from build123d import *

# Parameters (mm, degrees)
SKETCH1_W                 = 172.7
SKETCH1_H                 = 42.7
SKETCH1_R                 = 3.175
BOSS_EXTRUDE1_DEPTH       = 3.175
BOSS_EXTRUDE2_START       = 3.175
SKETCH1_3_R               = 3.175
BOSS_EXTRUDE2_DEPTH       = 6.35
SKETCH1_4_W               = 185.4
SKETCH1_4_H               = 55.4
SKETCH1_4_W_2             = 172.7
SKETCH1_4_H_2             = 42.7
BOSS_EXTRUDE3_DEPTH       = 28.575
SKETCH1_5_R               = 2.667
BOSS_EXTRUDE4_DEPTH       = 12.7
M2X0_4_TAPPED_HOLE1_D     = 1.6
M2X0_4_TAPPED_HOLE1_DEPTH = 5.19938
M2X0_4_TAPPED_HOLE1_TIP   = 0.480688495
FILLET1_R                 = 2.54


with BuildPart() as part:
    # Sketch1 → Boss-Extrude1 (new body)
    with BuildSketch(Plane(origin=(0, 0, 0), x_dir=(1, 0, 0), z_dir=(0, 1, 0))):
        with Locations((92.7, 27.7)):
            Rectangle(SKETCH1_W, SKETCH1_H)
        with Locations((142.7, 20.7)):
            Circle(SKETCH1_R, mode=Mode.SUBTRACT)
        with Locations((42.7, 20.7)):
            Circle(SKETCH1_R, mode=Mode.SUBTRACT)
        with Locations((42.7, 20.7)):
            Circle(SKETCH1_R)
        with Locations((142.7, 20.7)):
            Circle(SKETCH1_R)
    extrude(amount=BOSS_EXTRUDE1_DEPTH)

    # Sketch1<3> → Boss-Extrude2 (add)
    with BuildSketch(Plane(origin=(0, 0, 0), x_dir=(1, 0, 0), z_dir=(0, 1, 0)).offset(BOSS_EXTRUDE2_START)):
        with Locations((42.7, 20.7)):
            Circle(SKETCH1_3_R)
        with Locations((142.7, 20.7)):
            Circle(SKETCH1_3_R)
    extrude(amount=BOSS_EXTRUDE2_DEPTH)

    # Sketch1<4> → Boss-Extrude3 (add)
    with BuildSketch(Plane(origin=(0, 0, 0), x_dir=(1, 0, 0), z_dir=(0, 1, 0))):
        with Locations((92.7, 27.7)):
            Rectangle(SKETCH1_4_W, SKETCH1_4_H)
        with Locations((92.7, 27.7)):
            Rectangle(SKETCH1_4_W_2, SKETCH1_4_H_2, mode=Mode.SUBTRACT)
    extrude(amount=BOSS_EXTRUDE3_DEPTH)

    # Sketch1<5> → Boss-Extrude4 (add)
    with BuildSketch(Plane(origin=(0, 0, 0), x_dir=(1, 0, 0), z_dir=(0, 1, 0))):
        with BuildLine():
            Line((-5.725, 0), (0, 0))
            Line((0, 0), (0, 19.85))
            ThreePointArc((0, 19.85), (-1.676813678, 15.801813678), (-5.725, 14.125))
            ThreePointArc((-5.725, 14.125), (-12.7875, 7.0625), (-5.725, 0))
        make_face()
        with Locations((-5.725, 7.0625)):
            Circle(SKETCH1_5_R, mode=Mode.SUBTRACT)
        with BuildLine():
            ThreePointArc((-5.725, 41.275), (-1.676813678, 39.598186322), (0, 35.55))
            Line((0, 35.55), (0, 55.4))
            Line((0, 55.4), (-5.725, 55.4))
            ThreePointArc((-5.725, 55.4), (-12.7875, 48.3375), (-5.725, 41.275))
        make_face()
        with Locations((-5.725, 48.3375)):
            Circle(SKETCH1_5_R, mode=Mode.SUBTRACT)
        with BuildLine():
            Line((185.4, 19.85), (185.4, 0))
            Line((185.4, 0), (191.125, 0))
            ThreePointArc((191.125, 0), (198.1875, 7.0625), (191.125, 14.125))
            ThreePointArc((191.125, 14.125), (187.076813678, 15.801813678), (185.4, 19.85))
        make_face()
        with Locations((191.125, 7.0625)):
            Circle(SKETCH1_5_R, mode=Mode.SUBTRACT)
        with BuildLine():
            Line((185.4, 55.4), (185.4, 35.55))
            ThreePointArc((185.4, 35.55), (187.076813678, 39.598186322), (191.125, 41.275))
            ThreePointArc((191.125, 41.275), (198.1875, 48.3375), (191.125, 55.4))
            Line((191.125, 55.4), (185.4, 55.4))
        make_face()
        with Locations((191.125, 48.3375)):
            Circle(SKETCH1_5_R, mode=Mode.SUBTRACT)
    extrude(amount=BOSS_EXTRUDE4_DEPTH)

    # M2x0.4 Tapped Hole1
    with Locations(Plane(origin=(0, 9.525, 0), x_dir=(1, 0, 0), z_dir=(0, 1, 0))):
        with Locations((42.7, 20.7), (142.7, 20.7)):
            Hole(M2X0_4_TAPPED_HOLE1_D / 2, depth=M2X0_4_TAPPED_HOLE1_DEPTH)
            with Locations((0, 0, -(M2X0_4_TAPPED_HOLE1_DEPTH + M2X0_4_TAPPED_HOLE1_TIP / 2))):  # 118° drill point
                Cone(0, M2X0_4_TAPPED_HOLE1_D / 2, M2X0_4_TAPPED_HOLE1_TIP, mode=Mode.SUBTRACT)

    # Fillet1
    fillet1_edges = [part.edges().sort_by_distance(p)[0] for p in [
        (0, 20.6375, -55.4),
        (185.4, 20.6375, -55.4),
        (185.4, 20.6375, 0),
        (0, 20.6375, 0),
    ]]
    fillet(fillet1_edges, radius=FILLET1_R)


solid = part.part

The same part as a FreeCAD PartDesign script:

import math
import FreeCAD as App
import Part
import Sketcher
from FreeCAD import Vector
Q = App.Units.Quantity


def edges_at(feature, points):
    """Names of the edges that pass closest to the given points."""
    edges = feature.Shape.Edges
    near = lambda p: min(range(len(edges)), key=lambda i: edges[i].distToShape(Part.Vertex(*p))[0])
    return sorted({f"Edge{near(p) + 1}" for p in points})


def add_polygon(sketch, points):
    """Adds a closed chain of lines whose ends are joined by coincident constraints."""
    first, n = sketch.GeometryCount, len(points)
    for a, b in zip(points, points[1:] + points[:1]):
        sketch.addGeometry(Part.LineSegment(App.Vector(*a, 0), App.Vector(*b, 0)), False)
    for i in range(n):
        sketch.addConstraint(Sketcher.Constraint("Coincident", first + i, 2, first + (i + 1) % n, 1))

doc = App.newDocument("Part")
body = doc.addObject("PartDesign::Body", "Body")

sketch1 = doc.addObject("Sketcher::SketchObject", "Sketch")
body.addObject(sketch1)
sketch1.AttachmentSupport = (doc.XZ_Plane, [""])
sketch1.MapMode = "FlatFace"
add_polygon(sketch1, [(6.35, -49.05), (6.35, -6.35), (179.05, -6.35), (179.05, -49.05)])
sketch1.addConstraint(Sketcher.Constraint("Vertical", 0))
sketch1.addConstraint(Sketcher.Constraint("Horizontal", 1))
sketch1.addConstraint(Sketcher.Constraint("Vertical", 2))
sketch1.addConstraint(Sketcher.Constraint("Horizontal", 3))
sketch1.addConstraint(Sketcher.Constraint("DistanceX", -1, 1, 0, 2, Q("0.25 in")))
sketch1.addConstraint(Sketcher.Constraint("DistanceY", 0, 2, -1, 1, Q("0.25 in")))
sketch1.addConstraint(Sketcher.Constraint("DistanceX", 1, 1, 1, 2, Q("172.7 mm")))
sketch1.addConstraint(Sketcher.Constraint("DistanceY", 0, 1, 0, 2, Q("42.7 mm")))
pad1 = doc.addObject("PartDesign::Pad", "Pad")
body.addObject(pad1)
pad1.Profile = sketch1
pad1.Length = Q("0.125 in")
pad1.Reversed = True

sketch2 = doc.addObject("Sketcher::SketchObject", "Sketch001")
body.addObject(sketch2)
sketch2.AttachmentSupport = (doc.XZ_Plane, [""])
sketch2.MapMode = "FlatFace"
sketch2.AttachmentOffset = App.Placement(Vector(0, 0, -0.125 * 25.4), App.Rotation())
sketch2.addGeometry(Part.Circle(Vector(42.7, -20.7, 0), Vector(0, 0, 1), 3.175), False)
sketch2.addGeometry(Part.Circle(Vector(142.7, -20.7, 0), Vector(0, 0, 1), 3.175), False)
sketch2.addConstraint(Sketcher.Constraint("Equal", 0, 1))
sketch2.addConstraint(Sketcher.Constraint("Horizontal", 0, 3, 1, 3))
sketch2.addConstraint(Sketcher.Constraint("Diameter", 0, Q("0.25 in")))
sketch2.addConstraint(Sketcher.Constraint("DistanceX", -1, 1, 0, 3, Q("42.7 mm")))
sketch2.addConstraint(Sketcher.Constraint("DistanceY", 0, 3, -1, 1, Q("20.7 mm")))
sketch2.addConstraint(Sketcher.Constraint("DistanceX", -1, 1, 1, 3, Q("142.7 mm")))
pad2 = doc.addObject("PartDesign::Pad", "Pad001")
body.addObject(pad2)
pad2.Profile = sketch2
pad2.Length = Q("0.25 in")
pad2.Reversed = True

sketch3 = doc.addObject("Sketcher::SketchObject", "Sketch002")
body.addObject(sketch3)
sketch3.AttachmentSupport = (doc.XZ_Plane, [""])
sketch3.MapMode = "FlatFace"
add_polygon(sketch3, [(0, -55.4), (0, 0), (185.4, 0), (185.4, -55.4)])
add_polygon(sketch3, [(179.05, -6.35), (6.35, -6.35), (6.35, -49.05), (179.05, -49.05)])
sketch3.addConstraint(Sketcher.Constraint("Vertical", 0))
sketch3.addConstraint(Sketcher.Constraint("Horizontal", 1))
sketch3.addConstraint(Sketcher.Constraint("Vertical", 2))
sketch3.addConstraint(Sketcher.Constraint("Horizontal", 3))
sketch3.addConstraint(Sketcher.Constraint("Horizontal", 4))
sketch3.addConstraint(Sketcher.Constraint("Vertical", 5))
sketch3.addConstraint(Sketcher.Constraint("Horizontal", 6))
sketch3.addConstraint(Sketcher.Constraint("Vertical", 7))
sketch3.addConstraint(Sketcher.Constraint("Coincident", 0, 2, -1, 1))
sketch3.addConstraint(Sketcher.Constraint("DistanceX", -1, 1, 4, 2, Q("0.25 in")))
sketch3.addConstraint(Sketcher.Constraint("DistanceY", 4, 2, -1, 1, Q("0.25 in")))
sketch3.addConstraint(Sketcher.Constraint("DistanceY", 3, 2, 5, 2, Q("0.25 in")))
sketch3.addConstraint(Sketcher.Constraint("DistanceX", 6, 2, 2, 2, Q("0.25 in")))
sketch3.addConstraint(Sketcher.Constraint("DistanceX", 1, 1, 1, 2, Q("185.4 mm")))
sketch3.addConstraint(Sketcher.Constraint("DistanceY", 0, 1, 0, 2, Q("55.4 mm")))
pad3 = doc.addObject("PartDesign::Pad", "Pad002")
body.addObject(pad3)
pad3.Profile = sketch3
pad3.Length = Q("1.125 in")
pad3.Reversed = True

sketch4 = doc.addObject("Sketcher::SketchObject", "Sketch003")
body.addObject(sketch4)
sketch4.AttachmentSupport = (doc.XZ_Plane, [""])
sketch4.MapMode = "FlatFace"
sketch4.addGeometry(Part.LineSegment(Vector(-5.725, 0, 0), Vector(0, 0, 0)), False)
sketch4.addGeometry(Part.LineSegment(Vector(0, 0, 0), Vector(0, -19.85, 0)), False)
sketch4.addGeometry(Part.ArcOfCircle(Part.Circle(Vector(-5.725, -19.85, 0), Vector(0, 0, 1), 5.725), math.radians(0), math.radians(90)), False)
sketch4.addGeometry(Part.ArcOfCircle(Part.Circle(Vector(-5.725, -7.0625, 0), Vector(0, 0, 1), 7.0625), math.radians(90), math.radians(270)), False)
sketch4.addGeometry(Part.Circle(Vector(-5.725, -7.0625, 0), Vector(0, 0, 1), 2.667), False)
sketch4.addGeometry(Part.ArcOfCircle(Part.Circle(Vector(-5.725, -35.55, 0), Vector(0, 0, 1), 5.725), math.radians(-90), math.radians(0)), False)
sketch4.addGeometry(Part.LineSegment(Vector(0, -35.55, 0), Vector(0, -55.4, 0)), False)
sketch4.addGeometry(Part.LineSegment(Vector(0, -55.4, 0), Vector(-5.725, -55.4, 0)), False)
sketch4.addGeometry(Part.ArcOfCircle(Part.Circle(Vector(-5.725, -48.3375, 0), Vector(0, 0, 1), 7.0625), math.radians(90), math.radians(270)), False)
sketch4.addGeometry(Part.Circle(Vector(-5.725, -48.3375, 0), Vector(0, 0, 1), 2.667), False)
sketch4.addGeometry(Part.LineSegment(Vector(185.4, -19.85, 0), Vector(185.4, 0, 0)), False)
sketch4.addGeometry(Part.LineSegment(Vector(185.4, 0, 0), Vector(191.125, 0, 0)), False)
sketch4.addGeometry(Part.ArcOfCircle(Part.Circle(Vector(191.125, -7.0625, 0), Vector(0, 0, 1), 7.0625), math.radians(-90), math.radians(90)), False)
sketch4.addGeometry(Part.ArcOfCircle(Part.Circle(Vector(191.125, -19.85, 0), Vector(0, 0, 1), 5.725), math.radians(90), math.radians(180)), False)
sketch4.addGeometry(Part.Circle(Vector(191.125, -7.0625, 0), Vector(0, 0, 1), 2.667), False)
sketch4.addGeometry(Part.LineSegment(Vector(185.4, -55.4, 0), Vector(185.4, -35.55, 0)), False)
sketch4.addGeometry(Part.ArcOfCircle(Part.Circle(Vector(191.125, -35.55, 0), Vector(0, 0, 1), 5.725), math.radians(-180), math.radians(-90)), False)
sketch4.addGeometry(Part.ArcOfCircle(Part.Circle(Vector(191.125, -48.3375, 0), Vector(0, 0, 1), 7.0625), math.radians(-90), math.radians(90)), False)
sketch4.addGeometry(Part.LineSegment(Vector(191.125, -55.4, 0), Vector(185.4, -55.4, 0)), False)
sketch4.addGeometry(Part.Circle(Vector(191.125, -48.3375, 0), Vector(0, 0, 1), 2.667), False)
sketch4.addConstraint(Sketcher.Constraint("Coincident", 0, 2, 1, 1))
sketch4.addConstraint(Sketcher.Constraint("Tangent", 1, 2, 2, 1))
sketch4.addConstraint(Sketcher.Constraint("Tangent", 2, 2, 3, 2))
sketch4.addConstraint(Sketcher.Constraint("Tangent", 3, 1, 0, 1))
sketch4.addConstraint(Sketcher.Constraint("Tangent", 5, 2, 6, 1))
sketch4.addConstraint(Sketcher.Constraint("Coincident", 6, 2, 7, 1))
sketch4.addConstraint(Sketcher.Constraint("Tangent", 7, 2, 8, 2))
sketch4.addConstraint(Sketcher.Constraint("Tangent", 8, 1, 5, 1))
sketch4.addConstraint(Sketcher.Constraint("Coincident", 10, 2, 11, 1))
sketch4.addConstraint(Sketcher.Constraint("Tangent", 11, 2, 12, 2))
sketch4.addConstraint(Sketcher.Constraint("Tangent", 12, 1, 13, 1))
sketch4.addConstraint(Sketcher.Constraint("Tangent", 13, 2, 10, 1))
sketch4.addConstraint(Sketcher.Constraint("Tangent", 15, 2, 16, 1))
sketch4.addConstraint(Sketcher.Constraint("Tangent", 16, 2, 17, 2))
sketch4.addConstraint(Sketcher.Constraint("Tangent", 17, 1, 18, 1))
sketch4.addConstraint(Sketcher.Constraint("Coincident", 18, 2, 15, 1))
sketch4.addConstraint(Sketcher.Constraint("Horizontal", 0))
sketch4.addConstraint(Sketcher.Constraint("Vertical", 1))
sketch4.addConstraint(Sketcher.Constraint("Vertical", 6))
sketch4.addConstraint(Sketcher.Constraint("Horizontal", 7))
sketch4.addConstraint(Sketcher.Constraint("Vertical", 10))
sketch4.addConstraint(Sketcher.Constraint("Horizontal", 11))
sketch4.addConstraint(Sketcher.Constraint("Vertical", 15))
sketch4.addConstraint(Sketcher.Constraint("Horizontal", 18))
sketch4.addConstraint(Sketcher.Constraint("Coincident", 0, 2, -1, 1))
sketch4.addConstraint(Sketcher.Constraint("Coincident", 4, 3, 3, 3))
sketch4.addConstraint(Sketcher.Constraint("Coincident", 9, 3, 8, 3))
sketch4.addConstraint(Sketcher.Constraint("Coincident", 14, 3, 12, 3))
sketch4.addConstraint(Sketcher.Constraint("Coincident", 19, 3, 17, 3))
sketch4.addConstraint(Sketcher.Constraint("Equal", 2, 5))
sketch4.addConstraint(Sketcher.Constraint("Equal", 3, 8))
sketch4.addConstraint(Sketcher.Constraint("Equal", 4, 9))
sketch4.addConstraint(Sketcher.Constraint("Equal", 8, 12))
sketch4.addConstraint(Sketcher.Constraint("Equal", 5, 13))
sketch4.addConstraint(Sketcher.Constraint("Equal", 9, 14))
sketch4.addConstraint(Sketcher.Constraint("Equal", 13, 16))
sketch4.addConstraint(Sketcher.Constraint("Equal", 12, 17))
sketch4.addConstraint(Sketcher.Constraint("Equal", 14, 19))
sketch4.addConstraint(Sketcher.Constraint("PointOnObject", 5, 2, -2))
sketch4.addConstraint(Sketcher.Constraint("PointOnObject", 10, 2, -1))
sketch4.addConstraint(Sketcher.Constraint("Horizontal", 5, 3, 16, 3))
sketch4.addConstraint(Sketcher.Constraint("Vertical", 2, 3, 3, 3))
sketch4.addConstraint(Sketcher.Constraint("Vertical", 5, 3, 8, 3))
sketch4.addConstraint(Sketcher.Constraint("Vertical", 12, 3, 13, 3))
sketch4.addConstraint(Sketcher.Constraint("Vertical", 14, 3, 16, 3))
sketch4.addConstraint(Sketcher.Constraint("Vertical", 16, 3, 17, 3))
sketch4.addConstraint(Sketcher.Constraint("Diameter", 4, Q("0.21 in")))
sketch4.addConstraint(Sketcher.Constraint("Radius", 2, Q("5.725 mm")))
sketch4.addConstraint(Sketcher.Constraint("Radius", 3, Q("7.0625 mm")))
sketch4.addConstraint(Sketcher.Constraint("DistanceX", 3, 3, 12, 3, Q("7.75 in")))
sketch4.addConstraint(Sketcher.Constraint("DistanceY", 8, 1, -1, 1, Q("1.625 in")))
pad4 = doc.addObject("PartDesign::Pad", "Pad003")
body.addObject(pad4)
pad4.Profile = sketch4
pad4.Length = Q("0.5 in")
pad4.Reversed = True

sketch5 = doc.addObject("Sketcher::SketchObject", "Sketch004")
body.addObject(sketch5)
sketch5.AttachmentSupport = (doc.XZ_Plane, [""])
sketch5.MapMode = "FlatFace"
sketch5.AttachmentOffset = App.Placement(Vector(0, 0, -0.375 * 25.4), App.Rotation())
sketch5.addGeometry(Part.Circle(Vector(42.7, -20.7, 0), Vector(0, 0, 1), 0.8), False)
sketch5.addGeometry(Part.Circle(Vector(142.7, -20.7, 0), Vector(0, 0, 1), 0.8), False)
sketch5.addConstraint(Sketcher.Constraint("Equal", 0, 1))
sketch5.addConstraint(Sketcher.Constraint("Horizontal", 0, 3, 1, 3))
sketch5.addConstraint(Sketcher.Constraint("Diameter", 0, Q("1.6 mm")))
sketch5.addConstraint(Sketcher.Constraint("DistanceX", -1, 1, 0, 3, Q("42.7 mm")))
sketch5.addConstraint(Sketcher.Constraint("DistanceY", 0, 3, -1, 1, Q("20.7 mm")))
sketch5.addConstraint(Sketcher.Constraint("DistanceX", -1, 1, 1, 3, Q("142.7 mm")))
doc.recompute()
hole = doc.addObject("PartDesign::Hole", "Hole")
body.addObject(hole)
hole.Profile = sketch5
hole.ThreadType = "None"
hole.Diameter = 1.6
hole.DepthType = "Dimension"
hole.Depth = Q("0.2047 in")
hole.DrillPoint = "Angled"
hole.DrillPointAngle = 118
hole.Reversed = True
doc.recompute()

fillet = doc.addObject("PartDesign::Fillet", "Fillet")
body.addObject(fillet)
fillet.Base = (hole, edges_at(hole, [
    (0, 20.637, -55.4),
    (185.4, 20.637, -55.4),
    (185.4, 20.637, 0),
    (0, 20.637, 0),
]))
fillet.Radius = Q("0.1 in")

doc.recompute()
